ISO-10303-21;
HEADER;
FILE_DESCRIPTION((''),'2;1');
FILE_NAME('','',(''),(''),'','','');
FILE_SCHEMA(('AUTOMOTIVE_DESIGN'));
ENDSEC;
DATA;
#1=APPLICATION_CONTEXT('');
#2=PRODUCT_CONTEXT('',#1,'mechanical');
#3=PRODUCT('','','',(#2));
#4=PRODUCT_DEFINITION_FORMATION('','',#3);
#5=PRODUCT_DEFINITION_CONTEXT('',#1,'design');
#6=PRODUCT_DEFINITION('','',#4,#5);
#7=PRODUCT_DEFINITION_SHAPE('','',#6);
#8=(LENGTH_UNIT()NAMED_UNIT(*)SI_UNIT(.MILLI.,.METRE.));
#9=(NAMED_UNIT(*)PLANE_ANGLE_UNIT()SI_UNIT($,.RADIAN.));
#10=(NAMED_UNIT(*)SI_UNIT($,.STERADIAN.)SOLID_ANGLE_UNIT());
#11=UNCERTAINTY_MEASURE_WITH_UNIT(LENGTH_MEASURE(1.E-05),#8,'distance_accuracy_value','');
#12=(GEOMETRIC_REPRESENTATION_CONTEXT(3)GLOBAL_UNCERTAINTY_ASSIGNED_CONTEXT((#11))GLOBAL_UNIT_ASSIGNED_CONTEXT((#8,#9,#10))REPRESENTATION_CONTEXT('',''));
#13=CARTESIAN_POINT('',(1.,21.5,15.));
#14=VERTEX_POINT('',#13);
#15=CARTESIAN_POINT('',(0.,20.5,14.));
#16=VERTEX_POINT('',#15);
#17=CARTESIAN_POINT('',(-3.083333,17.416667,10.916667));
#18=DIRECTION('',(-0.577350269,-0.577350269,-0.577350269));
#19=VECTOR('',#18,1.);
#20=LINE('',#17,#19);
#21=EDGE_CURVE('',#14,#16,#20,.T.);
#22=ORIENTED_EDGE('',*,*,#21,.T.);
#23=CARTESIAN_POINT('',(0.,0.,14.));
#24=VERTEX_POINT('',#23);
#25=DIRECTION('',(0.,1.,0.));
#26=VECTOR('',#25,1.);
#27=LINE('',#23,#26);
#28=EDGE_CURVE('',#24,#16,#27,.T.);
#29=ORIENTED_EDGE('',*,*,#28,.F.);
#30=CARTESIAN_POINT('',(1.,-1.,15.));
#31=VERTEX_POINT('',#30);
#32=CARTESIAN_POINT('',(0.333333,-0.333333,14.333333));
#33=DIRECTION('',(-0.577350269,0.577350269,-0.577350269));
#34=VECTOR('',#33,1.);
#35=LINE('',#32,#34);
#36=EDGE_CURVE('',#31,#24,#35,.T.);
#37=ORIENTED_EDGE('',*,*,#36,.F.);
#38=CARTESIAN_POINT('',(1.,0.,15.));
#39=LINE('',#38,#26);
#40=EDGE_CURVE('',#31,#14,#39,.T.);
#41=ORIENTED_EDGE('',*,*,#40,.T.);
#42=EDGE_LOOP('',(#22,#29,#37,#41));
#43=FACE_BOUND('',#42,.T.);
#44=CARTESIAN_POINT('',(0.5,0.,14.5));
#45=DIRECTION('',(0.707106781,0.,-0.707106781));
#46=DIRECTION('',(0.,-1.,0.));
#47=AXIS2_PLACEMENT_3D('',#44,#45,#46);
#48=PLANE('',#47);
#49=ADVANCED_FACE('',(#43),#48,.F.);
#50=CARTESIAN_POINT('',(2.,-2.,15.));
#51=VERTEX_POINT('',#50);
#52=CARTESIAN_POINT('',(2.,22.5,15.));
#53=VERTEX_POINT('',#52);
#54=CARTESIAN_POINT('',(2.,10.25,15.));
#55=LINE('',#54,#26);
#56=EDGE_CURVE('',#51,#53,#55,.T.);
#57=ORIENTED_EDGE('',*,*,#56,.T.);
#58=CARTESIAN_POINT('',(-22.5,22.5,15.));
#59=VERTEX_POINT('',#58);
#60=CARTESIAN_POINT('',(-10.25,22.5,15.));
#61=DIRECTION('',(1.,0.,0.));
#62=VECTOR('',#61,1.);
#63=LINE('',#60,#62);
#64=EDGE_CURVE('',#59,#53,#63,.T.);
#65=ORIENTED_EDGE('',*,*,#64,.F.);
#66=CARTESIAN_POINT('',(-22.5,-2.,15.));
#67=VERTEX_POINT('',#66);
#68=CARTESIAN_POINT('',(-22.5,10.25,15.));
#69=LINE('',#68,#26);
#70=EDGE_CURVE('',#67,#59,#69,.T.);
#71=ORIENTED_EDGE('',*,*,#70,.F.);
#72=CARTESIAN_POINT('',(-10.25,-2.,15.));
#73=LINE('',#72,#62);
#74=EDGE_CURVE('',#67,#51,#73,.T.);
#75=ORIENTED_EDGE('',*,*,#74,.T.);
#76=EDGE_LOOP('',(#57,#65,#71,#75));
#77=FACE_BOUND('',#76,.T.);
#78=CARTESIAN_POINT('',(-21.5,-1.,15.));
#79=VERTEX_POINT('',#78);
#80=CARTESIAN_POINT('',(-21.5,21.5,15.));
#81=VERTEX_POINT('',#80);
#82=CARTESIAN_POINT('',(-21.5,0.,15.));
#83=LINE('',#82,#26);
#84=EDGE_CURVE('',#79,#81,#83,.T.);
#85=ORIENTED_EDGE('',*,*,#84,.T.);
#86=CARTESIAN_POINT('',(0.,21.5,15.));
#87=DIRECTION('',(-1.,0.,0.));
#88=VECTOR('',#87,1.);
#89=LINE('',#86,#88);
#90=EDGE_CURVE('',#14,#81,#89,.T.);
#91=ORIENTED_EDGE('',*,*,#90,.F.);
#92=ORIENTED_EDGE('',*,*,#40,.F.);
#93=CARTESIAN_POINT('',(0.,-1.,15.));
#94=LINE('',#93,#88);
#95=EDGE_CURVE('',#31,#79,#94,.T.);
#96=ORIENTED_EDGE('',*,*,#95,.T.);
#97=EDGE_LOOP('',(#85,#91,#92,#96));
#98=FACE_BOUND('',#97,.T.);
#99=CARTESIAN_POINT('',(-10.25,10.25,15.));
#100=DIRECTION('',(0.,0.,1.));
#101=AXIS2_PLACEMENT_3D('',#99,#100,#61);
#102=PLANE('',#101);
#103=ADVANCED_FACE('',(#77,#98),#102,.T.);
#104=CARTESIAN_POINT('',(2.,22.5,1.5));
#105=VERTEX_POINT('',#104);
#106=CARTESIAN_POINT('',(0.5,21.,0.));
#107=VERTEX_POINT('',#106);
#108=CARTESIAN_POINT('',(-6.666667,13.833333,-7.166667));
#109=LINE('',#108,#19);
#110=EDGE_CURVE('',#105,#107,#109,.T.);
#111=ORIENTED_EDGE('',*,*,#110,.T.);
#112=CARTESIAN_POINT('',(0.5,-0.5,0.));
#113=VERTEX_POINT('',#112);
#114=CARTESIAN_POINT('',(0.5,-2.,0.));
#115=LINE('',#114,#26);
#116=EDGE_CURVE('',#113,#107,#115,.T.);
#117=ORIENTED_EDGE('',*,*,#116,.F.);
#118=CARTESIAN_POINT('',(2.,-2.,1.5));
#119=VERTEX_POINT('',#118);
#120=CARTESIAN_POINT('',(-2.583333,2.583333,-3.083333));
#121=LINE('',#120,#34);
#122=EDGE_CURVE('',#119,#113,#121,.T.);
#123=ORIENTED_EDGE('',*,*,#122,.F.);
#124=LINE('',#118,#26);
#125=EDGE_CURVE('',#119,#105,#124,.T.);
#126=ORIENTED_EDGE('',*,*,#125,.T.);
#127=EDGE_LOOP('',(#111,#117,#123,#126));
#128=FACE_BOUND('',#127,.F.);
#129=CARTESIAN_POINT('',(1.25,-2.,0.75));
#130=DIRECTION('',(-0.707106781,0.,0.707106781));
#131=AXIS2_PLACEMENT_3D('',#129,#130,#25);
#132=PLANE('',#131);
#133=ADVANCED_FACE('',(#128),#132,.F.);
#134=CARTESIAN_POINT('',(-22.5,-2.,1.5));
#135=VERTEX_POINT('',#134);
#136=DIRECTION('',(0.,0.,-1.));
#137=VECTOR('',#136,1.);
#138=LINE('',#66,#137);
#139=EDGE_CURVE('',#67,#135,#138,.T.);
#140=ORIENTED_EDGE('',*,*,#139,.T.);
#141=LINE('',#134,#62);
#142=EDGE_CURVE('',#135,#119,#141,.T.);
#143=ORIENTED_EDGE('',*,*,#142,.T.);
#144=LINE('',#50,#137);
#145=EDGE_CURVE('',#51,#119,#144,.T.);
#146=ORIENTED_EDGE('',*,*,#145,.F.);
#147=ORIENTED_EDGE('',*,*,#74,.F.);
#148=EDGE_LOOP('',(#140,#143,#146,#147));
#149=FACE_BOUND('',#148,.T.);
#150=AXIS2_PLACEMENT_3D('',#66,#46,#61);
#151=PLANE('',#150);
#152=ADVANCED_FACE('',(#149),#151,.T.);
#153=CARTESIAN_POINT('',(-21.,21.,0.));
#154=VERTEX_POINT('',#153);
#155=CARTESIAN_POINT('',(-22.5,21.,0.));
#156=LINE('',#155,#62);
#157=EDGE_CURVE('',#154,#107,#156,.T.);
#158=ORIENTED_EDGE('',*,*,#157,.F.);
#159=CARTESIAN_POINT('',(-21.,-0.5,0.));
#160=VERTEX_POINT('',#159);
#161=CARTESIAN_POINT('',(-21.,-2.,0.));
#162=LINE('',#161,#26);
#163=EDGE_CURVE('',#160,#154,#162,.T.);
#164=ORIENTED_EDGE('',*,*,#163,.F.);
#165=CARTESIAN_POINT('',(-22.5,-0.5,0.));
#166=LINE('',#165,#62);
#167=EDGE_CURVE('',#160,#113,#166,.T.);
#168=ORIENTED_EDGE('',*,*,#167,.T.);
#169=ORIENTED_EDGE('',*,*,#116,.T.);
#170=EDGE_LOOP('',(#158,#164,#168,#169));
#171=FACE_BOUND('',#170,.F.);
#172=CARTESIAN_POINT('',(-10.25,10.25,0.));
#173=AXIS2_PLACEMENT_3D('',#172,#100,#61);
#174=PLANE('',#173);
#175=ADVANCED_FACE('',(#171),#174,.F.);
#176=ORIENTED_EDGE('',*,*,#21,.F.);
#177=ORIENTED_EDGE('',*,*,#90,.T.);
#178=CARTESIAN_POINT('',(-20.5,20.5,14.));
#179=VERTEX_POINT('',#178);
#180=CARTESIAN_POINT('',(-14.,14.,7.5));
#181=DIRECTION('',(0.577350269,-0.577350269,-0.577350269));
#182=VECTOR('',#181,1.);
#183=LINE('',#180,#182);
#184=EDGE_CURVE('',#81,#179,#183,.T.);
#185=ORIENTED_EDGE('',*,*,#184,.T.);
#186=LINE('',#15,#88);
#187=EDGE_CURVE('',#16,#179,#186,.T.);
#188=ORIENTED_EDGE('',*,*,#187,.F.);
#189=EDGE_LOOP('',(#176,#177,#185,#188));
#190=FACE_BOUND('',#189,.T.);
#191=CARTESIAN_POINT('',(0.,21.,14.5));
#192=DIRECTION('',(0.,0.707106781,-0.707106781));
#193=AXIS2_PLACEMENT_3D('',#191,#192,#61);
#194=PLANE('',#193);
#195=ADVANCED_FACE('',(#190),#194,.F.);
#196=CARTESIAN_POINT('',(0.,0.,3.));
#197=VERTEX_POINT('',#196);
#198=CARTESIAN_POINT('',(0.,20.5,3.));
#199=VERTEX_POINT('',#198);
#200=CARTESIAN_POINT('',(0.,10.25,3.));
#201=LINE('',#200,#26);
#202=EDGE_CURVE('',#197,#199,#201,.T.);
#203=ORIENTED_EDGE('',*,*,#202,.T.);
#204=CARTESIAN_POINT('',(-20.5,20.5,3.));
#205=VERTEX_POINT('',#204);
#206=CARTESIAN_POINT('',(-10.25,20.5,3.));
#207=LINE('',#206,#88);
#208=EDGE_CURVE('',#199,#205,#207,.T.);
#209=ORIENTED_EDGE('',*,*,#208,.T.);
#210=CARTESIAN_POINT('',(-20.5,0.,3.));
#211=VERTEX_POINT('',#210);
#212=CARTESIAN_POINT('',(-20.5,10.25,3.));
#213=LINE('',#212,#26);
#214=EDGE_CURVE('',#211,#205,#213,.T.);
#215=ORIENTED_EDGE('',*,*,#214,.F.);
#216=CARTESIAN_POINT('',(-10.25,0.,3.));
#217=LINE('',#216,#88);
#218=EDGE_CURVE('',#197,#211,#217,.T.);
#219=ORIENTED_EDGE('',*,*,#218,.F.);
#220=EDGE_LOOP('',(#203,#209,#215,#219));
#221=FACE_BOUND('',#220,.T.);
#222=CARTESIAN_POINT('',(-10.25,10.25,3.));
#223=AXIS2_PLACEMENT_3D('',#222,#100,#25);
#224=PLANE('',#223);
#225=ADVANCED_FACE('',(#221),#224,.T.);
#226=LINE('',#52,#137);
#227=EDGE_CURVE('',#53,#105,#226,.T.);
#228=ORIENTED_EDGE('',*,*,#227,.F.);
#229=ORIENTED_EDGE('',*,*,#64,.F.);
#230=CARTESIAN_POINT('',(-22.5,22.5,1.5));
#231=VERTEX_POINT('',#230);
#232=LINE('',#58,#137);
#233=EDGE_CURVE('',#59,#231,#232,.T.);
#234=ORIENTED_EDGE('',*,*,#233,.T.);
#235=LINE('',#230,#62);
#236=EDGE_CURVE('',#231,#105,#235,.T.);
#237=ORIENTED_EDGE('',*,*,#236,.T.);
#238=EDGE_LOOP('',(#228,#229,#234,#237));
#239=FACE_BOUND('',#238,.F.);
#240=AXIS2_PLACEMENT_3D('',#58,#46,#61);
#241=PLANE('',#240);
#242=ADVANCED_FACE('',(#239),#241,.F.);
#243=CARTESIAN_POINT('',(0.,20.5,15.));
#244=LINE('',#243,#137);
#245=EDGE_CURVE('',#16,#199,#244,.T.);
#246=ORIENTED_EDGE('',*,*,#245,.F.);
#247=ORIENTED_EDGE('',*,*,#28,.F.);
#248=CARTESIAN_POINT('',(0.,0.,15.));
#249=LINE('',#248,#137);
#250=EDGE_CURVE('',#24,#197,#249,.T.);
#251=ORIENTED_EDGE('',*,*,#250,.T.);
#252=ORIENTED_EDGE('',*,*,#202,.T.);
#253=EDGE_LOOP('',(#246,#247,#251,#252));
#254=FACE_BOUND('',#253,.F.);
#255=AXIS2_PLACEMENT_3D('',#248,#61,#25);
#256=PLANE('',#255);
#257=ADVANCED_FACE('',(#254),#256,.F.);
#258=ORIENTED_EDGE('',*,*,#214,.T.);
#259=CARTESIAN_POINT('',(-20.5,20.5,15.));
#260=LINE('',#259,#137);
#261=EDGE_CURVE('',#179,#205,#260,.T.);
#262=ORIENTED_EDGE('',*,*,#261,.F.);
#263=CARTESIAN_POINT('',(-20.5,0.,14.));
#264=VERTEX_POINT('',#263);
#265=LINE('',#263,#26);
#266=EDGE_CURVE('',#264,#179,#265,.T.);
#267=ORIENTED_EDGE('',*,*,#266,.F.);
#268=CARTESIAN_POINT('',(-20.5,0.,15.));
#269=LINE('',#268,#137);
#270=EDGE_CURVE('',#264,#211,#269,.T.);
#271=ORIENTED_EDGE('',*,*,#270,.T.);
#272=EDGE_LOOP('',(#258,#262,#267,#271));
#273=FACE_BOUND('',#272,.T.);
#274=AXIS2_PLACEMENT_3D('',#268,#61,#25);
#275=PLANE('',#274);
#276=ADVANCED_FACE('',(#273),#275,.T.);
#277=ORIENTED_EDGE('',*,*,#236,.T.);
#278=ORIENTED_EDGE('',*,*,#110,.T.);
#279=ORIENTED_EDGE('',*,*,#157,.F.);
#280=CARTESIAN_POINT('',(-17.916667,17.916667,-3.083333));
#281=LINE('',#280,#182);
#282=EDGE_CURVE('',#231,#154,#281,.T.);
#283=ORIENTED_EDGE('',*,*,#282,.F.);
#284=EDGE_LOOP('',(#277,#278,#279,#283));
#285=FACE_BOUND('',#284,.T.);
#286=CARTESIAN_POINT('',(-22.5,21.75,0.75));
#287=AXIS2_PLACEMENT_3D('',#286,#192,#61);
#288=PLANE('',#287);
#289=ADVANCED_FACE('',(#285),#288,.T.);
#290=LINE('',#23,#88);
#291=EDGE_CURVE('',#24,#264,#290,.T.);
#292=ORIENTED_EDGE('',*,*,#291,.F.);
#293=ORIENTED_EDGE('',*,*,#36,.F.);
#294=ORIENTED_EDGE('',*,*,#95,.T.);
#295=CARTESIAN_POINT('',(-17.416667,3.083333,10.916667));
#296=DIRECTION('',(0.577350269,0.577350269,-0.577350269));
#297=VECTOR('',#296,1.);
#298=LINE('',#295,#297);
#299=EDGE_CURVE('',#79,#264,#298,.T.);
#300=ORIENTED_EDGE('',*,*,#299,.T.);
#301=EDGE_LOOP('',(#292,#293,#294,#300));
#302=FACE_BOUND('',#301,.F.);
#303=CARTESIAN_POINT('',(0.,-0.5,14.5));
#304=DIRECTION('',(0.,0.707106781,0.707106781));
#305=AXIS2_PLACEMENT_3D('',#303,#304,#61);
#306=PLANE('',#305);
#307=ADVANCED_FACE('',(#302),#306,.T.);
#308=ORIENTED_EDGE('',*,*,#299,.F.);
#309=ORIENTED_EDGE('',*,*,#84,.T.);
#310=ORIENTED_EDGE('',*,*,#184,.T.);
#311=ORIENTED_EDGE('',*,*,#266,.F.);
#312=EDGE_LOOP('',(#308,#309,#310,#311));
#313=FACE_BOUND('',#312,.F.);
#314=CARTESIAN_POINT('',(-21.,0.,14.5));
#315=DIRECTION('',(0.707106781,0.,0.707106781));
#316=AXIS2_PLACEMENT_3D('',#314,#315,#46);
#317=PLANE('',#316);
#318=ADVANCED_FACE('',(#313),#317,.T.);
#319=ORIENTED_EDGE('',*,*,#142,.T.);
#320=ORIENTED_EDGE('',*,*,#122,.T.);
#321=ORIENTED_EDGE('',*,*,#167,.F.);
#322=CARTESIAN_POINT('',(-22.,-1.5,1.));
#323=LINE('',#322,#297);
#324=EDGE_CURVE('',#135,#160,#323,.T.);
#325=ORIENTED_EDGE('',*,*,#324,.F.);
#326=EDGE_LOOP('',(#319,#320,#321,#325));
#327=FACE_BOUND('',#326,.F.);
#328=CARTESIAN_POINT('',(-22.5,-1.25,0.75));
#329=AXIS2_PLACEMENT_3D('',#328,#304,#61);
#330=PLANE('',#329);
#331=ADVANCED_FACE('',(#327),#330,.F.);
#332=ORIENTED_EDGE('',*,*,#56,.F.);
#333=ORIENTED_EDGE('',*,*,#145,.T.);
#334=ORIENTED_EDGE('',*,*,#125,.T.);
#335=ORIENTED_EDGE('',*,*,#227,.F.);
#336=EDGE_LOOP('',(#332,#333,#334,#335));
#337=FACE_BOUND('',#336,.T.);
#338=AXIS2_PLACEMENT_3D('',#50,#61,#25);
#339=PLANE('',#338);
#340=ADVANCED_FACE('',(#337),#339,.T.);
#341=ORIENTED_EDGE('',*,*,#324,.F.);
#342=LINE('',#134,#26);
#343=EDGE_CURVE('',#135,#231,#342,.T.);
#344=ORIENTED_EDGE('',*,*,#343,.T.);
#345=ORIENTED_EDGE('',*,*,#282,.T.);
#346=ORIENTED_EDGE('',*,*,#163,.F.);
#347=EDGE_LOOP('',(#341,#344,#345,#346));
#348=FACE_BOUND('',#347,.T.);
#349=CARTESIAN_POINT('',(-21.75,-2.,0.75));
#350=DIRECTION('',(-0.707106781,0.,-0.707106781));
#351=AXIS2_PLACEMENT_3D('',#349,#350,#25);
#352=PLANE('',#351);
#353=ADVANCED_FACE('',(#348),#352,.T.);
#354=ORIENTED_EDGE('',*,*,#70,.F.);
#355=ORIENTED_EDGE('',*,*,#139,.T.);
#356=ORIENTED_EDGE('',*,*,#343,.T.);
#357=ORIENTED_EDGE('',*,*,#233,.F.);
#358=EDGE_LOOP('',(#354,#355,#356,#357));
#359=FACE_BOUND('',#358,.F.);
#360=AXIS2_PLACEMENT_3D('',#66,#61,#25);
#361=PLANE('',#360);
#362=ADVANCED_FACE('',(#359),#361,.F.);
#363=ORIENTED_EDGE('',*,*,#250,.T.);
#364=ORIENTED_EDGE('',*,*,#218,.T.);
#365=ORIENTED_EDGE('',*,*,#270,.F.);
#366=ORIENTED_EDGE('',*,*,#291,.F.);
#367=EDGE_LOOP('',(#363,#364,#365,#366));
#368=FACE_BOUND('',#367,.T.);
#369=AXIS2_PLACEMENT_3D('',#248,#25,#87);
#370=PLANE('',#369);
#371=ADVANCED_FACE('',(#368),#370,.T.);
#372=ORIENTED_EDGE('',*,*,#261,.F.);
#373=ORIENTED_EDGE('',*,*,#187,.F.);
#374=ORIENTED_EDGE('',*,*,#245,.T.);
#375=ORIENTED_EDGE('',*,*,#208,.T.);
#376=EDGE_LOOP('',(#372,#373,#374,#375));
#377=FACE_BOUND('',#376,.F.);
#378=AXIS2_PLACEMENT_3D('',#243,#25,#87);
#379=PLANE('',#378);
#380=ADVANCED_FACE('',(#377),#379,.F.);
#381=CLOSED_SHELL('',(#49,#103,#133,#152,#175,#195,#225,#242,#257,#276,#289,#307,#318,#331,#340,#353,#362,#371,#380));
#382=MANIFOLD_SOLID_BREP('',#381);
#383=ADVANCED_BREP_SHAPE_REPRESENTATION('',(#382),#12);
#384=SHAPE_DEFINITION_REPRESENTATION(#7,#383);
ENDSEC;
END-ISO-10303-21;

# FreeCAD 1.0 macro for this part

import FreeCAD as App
import Part
import Sketcher
Q = App.Units.Quantity


def edges_at(feature, points):
    """Names of the edges that pass closest to the given points."""
    edges = feature.Shape.Edges
    near = lambda p: min(range(len(edges)), key=lambda i: edges[i].distToShape(Part.Vertex(*p))[0])
    return sorted({f"Edge{near(p) + 1}" for p in points})

doc = App.newDocument("Part")
body = doc.addObject("PartDesign::Body", "Body")

sketch1 = doc.addObject("Sketcher::SketchObject", "Sketch")
body.addObject(sketch1)
sketch1.AttachmentSupport = (doc.XY_Plane, [""])
sketch1.MapMode = "FlatFace"
sketch1.addGeometry([
    Part.LineSegment(App.Vector(-20, 20, 0), App.Vector(-20, 0, 0)),
    Part.LineSegment(App.Vector(-20, 0, 0), App.Vector(0, 0, 0)),
    Part.LineSegment(App.Vector(0, 0, 0), App.Vector(0, 20, 0)),
    Part.LineSegment(App.Vector(0, 20, 0), App.Vector(-20, 20, 0)),
], False)
sketch1.addConstraint([
    Sketcher.Constraint("Coincident", 0, 2, 1, 1),
    Sketcher.Constraint("Coincident", 1, 2, 2, 1),
    Sketcher.Constraint("Coincident", 2, 2, 3, 1),
    Sketcher.Constraint("Coincident", 3, 2, 0, 1),
    Sketcher.Constraint("Vertical", 0),
    Sketcher.Constraint("Horizontal", 1),
    Sketcher.Constraint("Vertical", 2),
    Sketcher.Constraint("Horizontal", 3),
    Sketcher.Constraint("Coincident", 1, 2, -1, 1),
    Sketcher.Constraint("Equal", 3, 0),
    Sketcher.Constraint("DistanceX", 1, 1, 1, 2, Q("20.5 mm")),
])
pad1 = doc.addObject("PartDesign::Pad", "Pad")
body.addObject(pad1)
pad1.Profile = sketch1
pad1.Length = 15

sketch2 = doc.addObject("Sketcher::SketchObject", "Sketch001")
body.addObject(sketch2)
sketch2.AttachmentSupport = (doc.XY_Plane, [""])
sketch2.MapMode = "FlatFace"
sketch2.AttachmentOffset = App.Placement(App.Vector(0, 0, 15), App.Rotation())
sketch2.addGeometry([
    Part.LineSegment(App.Vector(-22, 22, 0), App.Vector(-22, -2, 0)),
    Part.LineSegment(App.Vector(-22, -2, 0), App.Vector(2, -2, 0)),
    Part.LineSegment(App.Vector(2, -2, 0), App.Vector(2, 22, 0)),
    Part.LineSegment(App.Vector(2, 22, 0), App.Vector(-22, 22, 0)),
], False)
sketch2.addConstraint([
    Sketcher.Constraint("Coincident", 0, 2, 1, 1),
    Sketcher.Constraint("Coincident", 1, 2, 2, 1),
    Sketcher.Constraint("Coincident", 2, 2, 3, 1),
    Sketcher.Constraint("Coincident", 3, 2, 0, 1),
    Sketcher.Constraint("Vertical", 0),
    Sketcher.Constraint("Horizontal", 1),
    Sketcher.Constraint("Vertical", 2),
    Sketcher.Constraint("Horizontal", 3),
    Sketcher.Constraint("Equal", 3, 0),
    Sketcher.Constraint("DistanceX", 1, 1, 1, 2, Q("24.5 mm")),
    Sketcher.Constraint("DistanceY", 0, 2, -1, 1, Q("2 mm")),
    Sketcher.Constraint("DistanceX", -1, 1, 1, 2, Q("2 mm")),
])
pad2 = doc.addObject("PartDesign::Pad", "Pad001")
body.addObject(pad2)
pad2.Profile = sketch2
pad2.Length = 15
pad2.Reversed = True

sketch3 = doc.addObject("Sketcher::SketchObject", "Sketch002")
body.addObject(sketch3)
sketch3.AttachmentSupport = (doc.XY_Plane, [""])
sketch3.MapMode = "FlatFace"
sketch3.AttachmentOffset = App.Placement(App.Vector(0, 0, 15), App.Rotation())
sketch3.addGeometry([
    Part.LineSegment(App.Vector(-20, 0, 0), App.Vector(0, 0, 0)),
    Part.LineSegment(App.Vector(0, 0, 0), App.Vector(0, 20, 0)),
    Part.LineSegment(App.Vector(0, 20, 0), App.Vector(-20, 20, 0)),
    Part.LineSegment(App.Vector(-20, 20, 0), App.Vector(-20, 0, 0)),
], False)
sketch3.addConstraint([
    Sketcher.Constraint("Coincident", 0, 2, 1, 1),
    Sketcher.Constraint("Coincident", 1, 2, 2, 1),
    Sketcher.Constraint("Coincident", 2, 2, 3, 1),
    Sketcher.Constraint("Coincident", 3, 2, 0, 1),
    Sketcher.Constraint("Horizontal", 0),
    Sketcher.Constraint("Vertical", 1),
    Sketcher.Constraint("Horizontal", 2),
    Sketcher.Constraint("Vertical", 3),
    Sketcher.Constraint("Coincident", 0, 2, -1, 1),
    Sketcher.Constraint("Equal", 2, 1),
    Sketcher.Constraint("DistanceX", 0, 1, 0, 2, Q("20.5 mm")),
])
pocket1 = doc.addObject("PartDesign::Pocket", "Pocket")
body.addObject(pocket1)
pocket1.Profile = sketch3
pocket1.Length = 12
doc.recompute()

chamfer = doc.addObject("PartDesign::Chamfer", "Chamfer")
body.addObject(chamfer)
chamfer.Base = (pocket1, edges_at(pocket1, [
    (-20.5, 10.25, 15),
    (-10.25, 20.5, 15),
    (0, 10.25, 15),
    (-10.25, 0, 15),
]))
chamfer.Size = 1
doc.recompute()

chamfer2 = doc.addObject("PartDesign::Chamfer", "Chamfer001")
body.addObject(chamfer2)
chamfer2.Base = (chamfer, edges_at(chamfer, [
    (-10.25, 22.5, 0),
    (-22.5, 10.25, 0),
    (-10.25, -2, 0),
    (2, 10.25, 0),
]))
chamfer2.Size = 1.5

doc.recompute()
